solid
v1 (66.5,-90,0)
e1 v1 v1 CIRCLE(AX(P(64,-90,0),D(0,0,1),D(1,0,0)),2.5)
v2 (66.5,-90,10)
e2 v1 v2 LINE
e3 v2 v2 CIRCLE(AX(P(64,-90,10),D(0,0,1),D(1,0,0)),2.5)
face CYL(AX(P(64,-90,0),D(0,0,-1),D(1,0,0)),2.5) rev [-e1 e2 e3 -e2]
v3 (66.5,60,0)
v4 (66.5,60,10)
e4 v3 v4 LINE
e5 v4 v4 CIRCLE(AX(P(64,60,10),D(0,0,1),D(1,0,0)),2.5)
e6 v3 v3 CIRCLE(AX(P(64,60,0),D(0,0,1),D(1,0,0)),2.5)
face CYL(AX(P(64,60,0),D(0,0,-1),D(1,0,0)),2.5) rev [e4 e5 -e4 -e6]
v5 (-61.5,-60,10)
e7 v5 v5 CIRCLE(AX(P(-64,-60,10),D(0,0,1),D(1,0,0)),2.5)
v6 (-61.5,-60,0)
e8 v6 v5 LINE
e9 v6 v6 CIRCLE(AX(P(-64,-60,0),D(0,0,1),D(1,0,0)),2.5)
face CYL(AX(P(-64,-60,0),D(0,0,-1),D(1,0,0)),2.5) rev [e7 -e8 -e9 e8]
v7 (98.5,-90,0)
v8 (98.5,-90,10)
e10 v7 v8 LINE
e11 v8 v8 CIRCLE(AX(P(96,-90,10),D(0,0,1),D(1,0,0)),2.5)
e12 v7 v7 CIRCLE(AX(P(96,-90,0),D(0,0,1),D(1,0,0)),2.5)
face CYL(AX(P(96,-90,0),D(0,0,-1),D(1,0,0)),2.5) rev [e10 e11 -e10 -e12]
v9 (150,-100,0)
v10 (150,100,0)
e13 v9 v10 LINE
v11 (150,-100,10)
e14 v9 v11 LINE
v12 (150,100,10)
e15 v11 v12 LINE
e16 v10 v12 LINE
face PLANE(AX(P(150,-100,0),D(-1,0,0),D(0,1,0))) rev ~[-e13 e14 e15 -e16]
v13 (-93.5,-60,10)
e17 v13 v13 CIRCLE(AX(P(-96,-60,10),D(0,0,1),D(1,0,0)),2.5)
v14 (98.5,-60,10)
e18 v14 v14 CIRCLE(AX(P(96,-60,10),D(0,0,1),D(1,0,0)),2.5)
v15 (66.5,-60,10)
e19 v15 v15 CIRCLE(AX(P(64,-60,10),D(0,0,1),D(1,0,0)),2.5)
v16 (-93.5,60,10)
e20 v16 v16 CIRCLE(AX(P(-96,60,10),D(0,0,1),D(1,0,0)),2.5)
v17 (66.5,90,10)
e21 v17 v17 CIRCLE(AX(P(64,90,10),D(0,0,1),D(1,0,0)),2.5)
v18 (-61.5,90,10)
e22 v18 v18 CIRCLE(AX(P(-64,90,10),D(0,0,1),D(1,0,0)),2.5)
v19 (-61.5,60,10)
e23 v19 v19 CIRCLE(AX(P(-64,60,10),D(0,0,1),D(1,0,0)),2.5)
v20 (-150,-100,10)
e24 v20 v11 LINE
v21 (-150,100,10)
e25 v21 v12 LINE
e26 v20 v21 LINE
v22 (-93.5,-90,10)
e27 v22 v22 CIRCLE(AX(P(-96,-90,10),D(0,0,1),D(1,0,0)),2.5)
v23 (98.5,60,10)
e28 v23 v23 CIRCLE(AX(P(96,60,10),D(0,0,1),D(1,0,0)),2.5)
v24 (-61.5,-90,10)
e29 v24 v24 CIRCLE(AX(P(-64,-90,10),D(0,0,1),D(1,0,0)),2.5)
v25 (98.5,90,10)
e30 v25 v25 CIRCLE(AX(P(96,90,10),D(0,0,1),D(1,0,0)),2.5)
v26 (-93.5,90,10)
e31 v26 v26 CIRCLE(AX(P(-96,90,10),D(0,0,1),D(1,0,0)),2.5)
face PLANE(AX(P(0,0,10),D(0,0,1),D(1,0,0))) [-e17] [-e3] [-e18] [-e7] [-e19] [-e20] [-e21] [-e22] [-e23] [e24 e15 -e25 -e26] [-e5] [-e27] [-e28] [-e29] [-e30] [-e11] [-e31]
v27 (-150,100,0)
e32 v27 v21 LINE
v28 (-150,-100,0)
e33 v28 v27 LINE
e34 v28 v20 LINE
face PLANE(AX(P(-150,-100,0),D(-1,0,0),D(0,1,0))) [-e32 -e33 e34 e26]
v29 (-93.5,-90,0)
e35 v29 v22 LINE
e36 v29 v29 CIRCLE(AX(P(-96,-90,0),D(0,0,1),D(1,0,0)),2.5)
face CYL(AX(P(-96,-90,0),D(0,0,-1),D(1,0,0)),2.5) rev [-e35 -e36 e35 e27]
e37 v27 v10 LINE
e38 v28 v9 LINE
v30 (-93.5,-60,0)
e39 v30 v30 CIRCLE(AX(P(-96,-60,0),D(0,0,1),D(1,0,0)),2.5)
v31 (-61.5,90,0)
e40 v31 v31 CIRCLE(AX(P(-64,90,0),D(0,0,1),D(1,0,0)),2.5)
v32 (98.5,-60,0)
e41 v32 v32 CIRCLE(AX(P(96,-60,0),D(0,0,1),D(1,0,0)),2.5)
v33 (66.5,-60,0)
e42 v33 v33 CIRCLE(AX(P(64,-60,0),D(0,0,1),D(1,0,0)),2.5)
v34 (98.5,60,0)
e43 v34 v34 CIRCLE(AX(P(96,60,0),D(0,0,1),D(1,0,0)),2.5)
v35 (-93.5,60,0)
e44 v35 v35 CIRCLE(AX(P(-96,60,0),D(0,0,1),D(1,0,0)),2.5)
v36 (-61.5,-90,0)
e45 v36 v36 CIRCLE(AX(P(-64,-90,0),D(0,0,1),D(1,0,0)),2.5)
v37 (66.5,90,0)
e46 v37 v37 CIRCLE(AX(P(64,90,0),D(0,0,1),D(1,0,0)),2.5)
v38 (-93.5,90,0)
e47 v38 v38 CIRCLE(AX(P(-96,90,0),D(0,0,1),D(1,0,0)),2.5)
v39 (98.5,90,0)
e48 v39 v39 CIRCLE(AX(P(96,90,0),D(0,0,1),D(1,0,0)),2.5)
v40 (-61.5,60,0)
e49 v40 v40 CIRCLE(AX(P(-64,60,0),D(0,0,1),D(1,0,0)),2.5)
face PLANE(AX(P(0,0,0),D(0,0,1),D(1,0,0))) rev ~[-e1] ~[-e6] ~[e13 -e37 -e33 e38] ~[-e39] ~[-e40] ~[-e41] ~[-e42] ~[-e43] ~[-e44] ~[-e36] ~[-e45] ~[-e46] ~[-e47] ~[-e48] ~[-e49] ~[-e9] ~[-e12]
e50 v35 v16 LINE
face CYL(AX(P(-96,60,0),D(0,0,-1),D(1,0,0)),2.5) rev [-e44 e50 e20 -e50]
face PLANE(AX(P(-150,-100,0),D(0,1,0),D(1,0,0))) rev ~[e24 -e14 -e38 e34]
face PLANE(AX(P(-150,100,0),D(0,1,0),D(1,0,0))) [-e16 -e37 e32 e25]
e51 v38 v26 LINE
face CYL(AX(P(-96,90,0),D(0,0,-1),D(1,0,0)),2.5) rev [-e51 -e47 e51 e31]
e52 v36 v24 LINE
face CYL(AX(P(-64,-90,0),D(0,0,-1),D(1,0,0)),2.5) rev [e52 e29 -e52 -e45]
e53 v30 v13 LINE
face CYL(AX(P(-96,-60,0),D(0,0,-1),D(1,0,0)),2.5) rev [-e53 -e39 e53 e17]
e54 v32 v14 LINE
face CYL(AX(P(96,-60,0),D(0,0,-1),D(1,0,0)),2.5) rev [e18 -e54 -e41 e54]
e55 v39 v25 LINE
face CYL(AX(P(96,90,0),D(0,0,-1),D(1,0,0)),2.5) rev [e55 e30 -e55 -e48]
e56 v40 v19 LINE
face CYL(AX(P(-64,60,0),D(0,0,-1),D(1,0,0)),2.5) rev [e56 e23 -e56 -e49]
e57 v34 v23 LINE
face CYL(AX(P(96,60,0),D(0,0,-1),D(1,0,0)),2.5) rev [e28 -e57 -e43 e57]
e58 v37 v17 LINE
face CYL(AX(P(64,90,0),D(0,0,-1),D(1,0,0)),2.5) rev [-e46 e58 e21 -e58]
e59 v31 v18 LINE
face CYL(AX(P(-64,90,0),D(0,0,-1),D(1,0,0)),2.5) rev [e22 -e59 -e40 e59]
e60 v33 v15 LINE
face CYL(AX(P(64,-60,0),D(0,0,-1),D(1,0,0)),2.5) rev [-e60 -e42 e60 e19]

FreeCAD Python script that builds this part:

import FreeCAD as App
import Part
import Sketcher

V = App.Vector

doc = App.newDocument("Part")
body = doc.addObject("PartDesign::Body", "Body")

# Sketch on XY plane
sketch1 = doc.addObject("Sketcher::SketchObject", "Sketch")
body.addObject(sketch1)
sketch1.AttachmentSupport = (doc.XY_Plane, [""])
sketch1.MapMode = "FlatFace"
sketch1.addGeometry([
    Part.LineSegment(V(-150, 100, 0), V(-150, -100, 0)),  # 0
    Part.LineSegment(V(-150, -100, 0), V(150, -100, 0)),  # 1
    Part.LineSegment(V(150, -100, 0), V(150, 100, 0)),  # 2
    Part.LineSegment(V(150, 100, 0), V(-150, 100, 0)),  # 3
    Part.Circle(V(-96, -90, 0), V(0, 0, 1), 2.5),  # 4
    Part.Circle(V(-64, -90, 0), V(0, 0, 1), 2.5),  # 5
    Part.Circle(V(-96, -60, 0), V(0, 0, 1), 2.5),  # 6
    Part.Circle(V(-64, -60, 0), V(0, 0, 1), 2.5),  # 7
    Part.Circle(V(64, -90, 0), V(0, 0, 1), 2.5),  # 8
    Part.Circle(V(96, -90, 0), V(0, 0, 1), 2.5),  # 9
    Part.Circle(V(64, -60, 0), V(0, 0, 1), 2.5),  # 10
    Part.Circle(V(96, -60, 0), V(0, 0, 1), 2.5),  # 11
    Part.Circle(V(-96, 60, 0), V(0, 0, 1), 2.5),  # 12
    Part.Circle(V(-64, 60, 0), V(0, 0, 1), 2.5),  # 13
    Part.Circle(V(-96, 90, 0), V(0, 0, 1), 2.5),  # 14
    Part.Circle(V(-64, 90, 0), V(0, 0, 1), 2.5),  # 15
    Part.Circle(V(64, 60, 0), V(0, 0, 1), 2.5),  # 16
    Part.Circle(V(96, 60, 0), V(0, 0, 1), 2.5),  # 17
    Part.Circle(V(64, 90, 0), V(0, 0, 1), 2.5),  # 18
    Part.Circle(V(96, 90, 0), V(0, 0, 1), 2.5),  # 19
], False)
sketch1.addConstraint([
    Sketcher.Constraint("Coincident", 0, 2, 1, 1),
    Sketcher.Constraint("Coincident", 1, 2, 2, 1),
    Sketcher.Constraint("Coincident", 2, 2, 3, 1),
    Sketcher.Constraint("Coincident", 3, 2, 0, 1),
    Sketcher.Constraint("Vertical", 0),
    Sketcher.Constraint("Horizontal", 1),
    Sketcher.Constraint("Vertical", 2),
    Sketcher.Constraint("Horizontal", 3),
    Sketcher.Constraint("Equal", 4, 5),
    Sketcher.Constraint("Equal", 5, 6),
    Sketcher.Constraint("Equal", 6, 7),
    Sketcher.Constraint("Equal", 7, 8),
    Sketcher.Constraint("Equal", 8, 9),
    Sketcher.Constraint("Equal", 9, 10),
    Sketcher.Constraint("Equal", 10, 11),
    Sketcher.Constraint("Equal", 11, 12),
    Sketcher.Constraint("Equal", 12, 13),
    Sketcher.Constraint("Equal", 13, 14),
    Sketcher.Constraint("Equal", 14, 15),
    Sketcher.Constraint("Equal", 15, 16),
    Sketcher.Constraint("Equal", 16, 17),
    Sketcher.Constraint("Equal", 17, 18),
    Sketcher.Constraint("Equal", 18, 19),
    Sketcher.Constraint("Symmetric", 11, 3, 12, 3, -1, 1),
    Sketcher.Constraint("Symmetric", 10, 3, 13, 3, -1, 1),
    Sketcher.Constraint("Symmetric", 9, 3, 14, 3, -1, 1),
    Sketcher.Constraint("Symmetric", 8, 3, 15, 3, -1, 1),
    Sketcher.Constraint("Symmetric", 7, 3, 16, 3, -1, 1),
    Sketcher.Constraint("Symmetric", 6, 3, 17, 3, -1, 1),
    Sketcher.Constraint("Symmetric", 5, 3, 18, 3, -1, 1),
    Sketcher.Constraint("Symmetric", 4, 3, 19, 3, -1, 1),
    Sketcher.Constraint("Symmetric", 0, 2, 2, 2, -1, 1),
    Sketcher.Constraint("Symmetric", 5, 3, 8, 3, -2),
    Sketcher.Constraint("Symmetric", 4, 3, 9, 3, -2),
    Sketcher.Constraint("Symmetric", 7, 3, 10, 3, -2),
    Sketcher.Constraint("Symmetric", 6, 3, 11, 3, -2),
    Sketcher.Constraint("Horizontal", 4, 3, 5, 3),
    Sketcher.Constraint("Horizontal", 6, 3, 7, 3),
    Sketcher.Constraint("Vertical", 4, 3, 6, 3),
    Sketcher.Constraint("Vertical", 5, 3, 7, 3),
    Sketcher.Constraint("Diameter", 4, 5.0),
    Sketcher.Constraint("DistanceX", 1, 1, 1, 2, 300.0),
    Sketcher.Constraint("DistanceY", 0, 2, 0, 1, 200.0),
    Sketcher.Constraint("DistanceX", 4, 3, -1, 1, 96.0),
    Sketcher.Constraint("DistanceY", 4, 3, -1, 1, 90.0),
    Sketcher.Constraint("DistanceX", 5, 3, -1, 1, 64.0),
    Sketcher.Constraint("DistanceY", 6, 3, -1, 1, 60.0),
])
pad1 = doc.addObject("PartDesign::Pad", "Pad")
body.addObject(pad1)
pad1.Profile = sketch1
pad1.Length = 10

doc.recompute()
